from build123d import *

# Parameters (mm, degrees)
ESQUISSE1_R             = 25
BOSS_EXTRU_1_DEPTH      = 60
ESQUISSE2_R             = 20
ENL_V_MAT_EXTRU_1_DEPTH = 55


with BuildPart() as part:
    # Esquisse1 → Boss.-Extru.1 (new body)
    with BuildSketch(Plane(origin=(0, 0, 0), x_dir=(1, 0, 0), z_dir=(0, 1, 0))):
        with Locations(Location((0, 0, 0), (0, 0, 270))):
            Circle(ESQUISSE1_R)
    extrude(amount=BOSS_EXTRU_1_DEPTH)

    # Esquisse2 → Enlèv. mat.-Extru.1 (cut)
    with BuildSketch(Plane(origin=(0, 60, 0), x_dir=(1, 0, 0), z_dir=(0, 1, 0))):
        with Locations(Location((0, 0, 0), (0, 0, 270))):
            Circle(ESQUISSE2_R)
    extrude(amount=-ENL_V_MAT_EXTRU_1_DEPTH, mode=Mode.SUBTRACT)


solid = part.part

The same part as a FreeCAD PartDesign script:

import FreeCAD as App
import Part
import Sketcher
from FreeCAD import Vector

doc = App.newDocument("Part")
body = doc.addObject("PartDesign::Body", "Body")

sketch1 = body.newObject("Sketcher::SketchObject", "Sketch")
sketch1.AttachmentSupport = (doc.getObject("XZ_Plane"), [""])
sketch1.MapMode = "FlatFace"
sketch1.addGeometry(Part.Circle(Vector(0, 0, 0), Vector(0, 0, 1), 25), False)
sketch1.addConstraint([
    Sketcher.Constraint("Coincident", 0, 3, -1, 1),
    Sketcher.Constraint("Diameter", 0, 50.0),
])
pad1 = body.newObject("PartDesign::Pad", "Pad")
pad1.Profile = sketch1
pad1.Length = 60
pad1.Reversed = True

sketch2 = body.newObject("Sketcher::SketchObject", "Sketch001")
sketch2.AttachmentSupport = (doc.getObject("XZ_Plane"), [""])
sketch2.MapMode = "FlatFace"
sketch2.AttachmentOffset = App.Placement(Vector(0, 0, -60), App.Rotation())
sketch2.addGeometry(Part.Circle(Vector(0, 0, 0), Vector(0, 0, 1), 20), False)
sketch2.addConstraint([
    Sketcher.Constraint("Coincident", 0, 3, -1, 1),
    Sketcher.Constraint("Diameter", 0, 40.0),
])
pocket1 = body.newObject("PartDesign::Pocket", "Pocket")
pocket1.Profile = sketch2
pocket1.Length = 55
pocket1.Reversed = True

doc.recompute()
